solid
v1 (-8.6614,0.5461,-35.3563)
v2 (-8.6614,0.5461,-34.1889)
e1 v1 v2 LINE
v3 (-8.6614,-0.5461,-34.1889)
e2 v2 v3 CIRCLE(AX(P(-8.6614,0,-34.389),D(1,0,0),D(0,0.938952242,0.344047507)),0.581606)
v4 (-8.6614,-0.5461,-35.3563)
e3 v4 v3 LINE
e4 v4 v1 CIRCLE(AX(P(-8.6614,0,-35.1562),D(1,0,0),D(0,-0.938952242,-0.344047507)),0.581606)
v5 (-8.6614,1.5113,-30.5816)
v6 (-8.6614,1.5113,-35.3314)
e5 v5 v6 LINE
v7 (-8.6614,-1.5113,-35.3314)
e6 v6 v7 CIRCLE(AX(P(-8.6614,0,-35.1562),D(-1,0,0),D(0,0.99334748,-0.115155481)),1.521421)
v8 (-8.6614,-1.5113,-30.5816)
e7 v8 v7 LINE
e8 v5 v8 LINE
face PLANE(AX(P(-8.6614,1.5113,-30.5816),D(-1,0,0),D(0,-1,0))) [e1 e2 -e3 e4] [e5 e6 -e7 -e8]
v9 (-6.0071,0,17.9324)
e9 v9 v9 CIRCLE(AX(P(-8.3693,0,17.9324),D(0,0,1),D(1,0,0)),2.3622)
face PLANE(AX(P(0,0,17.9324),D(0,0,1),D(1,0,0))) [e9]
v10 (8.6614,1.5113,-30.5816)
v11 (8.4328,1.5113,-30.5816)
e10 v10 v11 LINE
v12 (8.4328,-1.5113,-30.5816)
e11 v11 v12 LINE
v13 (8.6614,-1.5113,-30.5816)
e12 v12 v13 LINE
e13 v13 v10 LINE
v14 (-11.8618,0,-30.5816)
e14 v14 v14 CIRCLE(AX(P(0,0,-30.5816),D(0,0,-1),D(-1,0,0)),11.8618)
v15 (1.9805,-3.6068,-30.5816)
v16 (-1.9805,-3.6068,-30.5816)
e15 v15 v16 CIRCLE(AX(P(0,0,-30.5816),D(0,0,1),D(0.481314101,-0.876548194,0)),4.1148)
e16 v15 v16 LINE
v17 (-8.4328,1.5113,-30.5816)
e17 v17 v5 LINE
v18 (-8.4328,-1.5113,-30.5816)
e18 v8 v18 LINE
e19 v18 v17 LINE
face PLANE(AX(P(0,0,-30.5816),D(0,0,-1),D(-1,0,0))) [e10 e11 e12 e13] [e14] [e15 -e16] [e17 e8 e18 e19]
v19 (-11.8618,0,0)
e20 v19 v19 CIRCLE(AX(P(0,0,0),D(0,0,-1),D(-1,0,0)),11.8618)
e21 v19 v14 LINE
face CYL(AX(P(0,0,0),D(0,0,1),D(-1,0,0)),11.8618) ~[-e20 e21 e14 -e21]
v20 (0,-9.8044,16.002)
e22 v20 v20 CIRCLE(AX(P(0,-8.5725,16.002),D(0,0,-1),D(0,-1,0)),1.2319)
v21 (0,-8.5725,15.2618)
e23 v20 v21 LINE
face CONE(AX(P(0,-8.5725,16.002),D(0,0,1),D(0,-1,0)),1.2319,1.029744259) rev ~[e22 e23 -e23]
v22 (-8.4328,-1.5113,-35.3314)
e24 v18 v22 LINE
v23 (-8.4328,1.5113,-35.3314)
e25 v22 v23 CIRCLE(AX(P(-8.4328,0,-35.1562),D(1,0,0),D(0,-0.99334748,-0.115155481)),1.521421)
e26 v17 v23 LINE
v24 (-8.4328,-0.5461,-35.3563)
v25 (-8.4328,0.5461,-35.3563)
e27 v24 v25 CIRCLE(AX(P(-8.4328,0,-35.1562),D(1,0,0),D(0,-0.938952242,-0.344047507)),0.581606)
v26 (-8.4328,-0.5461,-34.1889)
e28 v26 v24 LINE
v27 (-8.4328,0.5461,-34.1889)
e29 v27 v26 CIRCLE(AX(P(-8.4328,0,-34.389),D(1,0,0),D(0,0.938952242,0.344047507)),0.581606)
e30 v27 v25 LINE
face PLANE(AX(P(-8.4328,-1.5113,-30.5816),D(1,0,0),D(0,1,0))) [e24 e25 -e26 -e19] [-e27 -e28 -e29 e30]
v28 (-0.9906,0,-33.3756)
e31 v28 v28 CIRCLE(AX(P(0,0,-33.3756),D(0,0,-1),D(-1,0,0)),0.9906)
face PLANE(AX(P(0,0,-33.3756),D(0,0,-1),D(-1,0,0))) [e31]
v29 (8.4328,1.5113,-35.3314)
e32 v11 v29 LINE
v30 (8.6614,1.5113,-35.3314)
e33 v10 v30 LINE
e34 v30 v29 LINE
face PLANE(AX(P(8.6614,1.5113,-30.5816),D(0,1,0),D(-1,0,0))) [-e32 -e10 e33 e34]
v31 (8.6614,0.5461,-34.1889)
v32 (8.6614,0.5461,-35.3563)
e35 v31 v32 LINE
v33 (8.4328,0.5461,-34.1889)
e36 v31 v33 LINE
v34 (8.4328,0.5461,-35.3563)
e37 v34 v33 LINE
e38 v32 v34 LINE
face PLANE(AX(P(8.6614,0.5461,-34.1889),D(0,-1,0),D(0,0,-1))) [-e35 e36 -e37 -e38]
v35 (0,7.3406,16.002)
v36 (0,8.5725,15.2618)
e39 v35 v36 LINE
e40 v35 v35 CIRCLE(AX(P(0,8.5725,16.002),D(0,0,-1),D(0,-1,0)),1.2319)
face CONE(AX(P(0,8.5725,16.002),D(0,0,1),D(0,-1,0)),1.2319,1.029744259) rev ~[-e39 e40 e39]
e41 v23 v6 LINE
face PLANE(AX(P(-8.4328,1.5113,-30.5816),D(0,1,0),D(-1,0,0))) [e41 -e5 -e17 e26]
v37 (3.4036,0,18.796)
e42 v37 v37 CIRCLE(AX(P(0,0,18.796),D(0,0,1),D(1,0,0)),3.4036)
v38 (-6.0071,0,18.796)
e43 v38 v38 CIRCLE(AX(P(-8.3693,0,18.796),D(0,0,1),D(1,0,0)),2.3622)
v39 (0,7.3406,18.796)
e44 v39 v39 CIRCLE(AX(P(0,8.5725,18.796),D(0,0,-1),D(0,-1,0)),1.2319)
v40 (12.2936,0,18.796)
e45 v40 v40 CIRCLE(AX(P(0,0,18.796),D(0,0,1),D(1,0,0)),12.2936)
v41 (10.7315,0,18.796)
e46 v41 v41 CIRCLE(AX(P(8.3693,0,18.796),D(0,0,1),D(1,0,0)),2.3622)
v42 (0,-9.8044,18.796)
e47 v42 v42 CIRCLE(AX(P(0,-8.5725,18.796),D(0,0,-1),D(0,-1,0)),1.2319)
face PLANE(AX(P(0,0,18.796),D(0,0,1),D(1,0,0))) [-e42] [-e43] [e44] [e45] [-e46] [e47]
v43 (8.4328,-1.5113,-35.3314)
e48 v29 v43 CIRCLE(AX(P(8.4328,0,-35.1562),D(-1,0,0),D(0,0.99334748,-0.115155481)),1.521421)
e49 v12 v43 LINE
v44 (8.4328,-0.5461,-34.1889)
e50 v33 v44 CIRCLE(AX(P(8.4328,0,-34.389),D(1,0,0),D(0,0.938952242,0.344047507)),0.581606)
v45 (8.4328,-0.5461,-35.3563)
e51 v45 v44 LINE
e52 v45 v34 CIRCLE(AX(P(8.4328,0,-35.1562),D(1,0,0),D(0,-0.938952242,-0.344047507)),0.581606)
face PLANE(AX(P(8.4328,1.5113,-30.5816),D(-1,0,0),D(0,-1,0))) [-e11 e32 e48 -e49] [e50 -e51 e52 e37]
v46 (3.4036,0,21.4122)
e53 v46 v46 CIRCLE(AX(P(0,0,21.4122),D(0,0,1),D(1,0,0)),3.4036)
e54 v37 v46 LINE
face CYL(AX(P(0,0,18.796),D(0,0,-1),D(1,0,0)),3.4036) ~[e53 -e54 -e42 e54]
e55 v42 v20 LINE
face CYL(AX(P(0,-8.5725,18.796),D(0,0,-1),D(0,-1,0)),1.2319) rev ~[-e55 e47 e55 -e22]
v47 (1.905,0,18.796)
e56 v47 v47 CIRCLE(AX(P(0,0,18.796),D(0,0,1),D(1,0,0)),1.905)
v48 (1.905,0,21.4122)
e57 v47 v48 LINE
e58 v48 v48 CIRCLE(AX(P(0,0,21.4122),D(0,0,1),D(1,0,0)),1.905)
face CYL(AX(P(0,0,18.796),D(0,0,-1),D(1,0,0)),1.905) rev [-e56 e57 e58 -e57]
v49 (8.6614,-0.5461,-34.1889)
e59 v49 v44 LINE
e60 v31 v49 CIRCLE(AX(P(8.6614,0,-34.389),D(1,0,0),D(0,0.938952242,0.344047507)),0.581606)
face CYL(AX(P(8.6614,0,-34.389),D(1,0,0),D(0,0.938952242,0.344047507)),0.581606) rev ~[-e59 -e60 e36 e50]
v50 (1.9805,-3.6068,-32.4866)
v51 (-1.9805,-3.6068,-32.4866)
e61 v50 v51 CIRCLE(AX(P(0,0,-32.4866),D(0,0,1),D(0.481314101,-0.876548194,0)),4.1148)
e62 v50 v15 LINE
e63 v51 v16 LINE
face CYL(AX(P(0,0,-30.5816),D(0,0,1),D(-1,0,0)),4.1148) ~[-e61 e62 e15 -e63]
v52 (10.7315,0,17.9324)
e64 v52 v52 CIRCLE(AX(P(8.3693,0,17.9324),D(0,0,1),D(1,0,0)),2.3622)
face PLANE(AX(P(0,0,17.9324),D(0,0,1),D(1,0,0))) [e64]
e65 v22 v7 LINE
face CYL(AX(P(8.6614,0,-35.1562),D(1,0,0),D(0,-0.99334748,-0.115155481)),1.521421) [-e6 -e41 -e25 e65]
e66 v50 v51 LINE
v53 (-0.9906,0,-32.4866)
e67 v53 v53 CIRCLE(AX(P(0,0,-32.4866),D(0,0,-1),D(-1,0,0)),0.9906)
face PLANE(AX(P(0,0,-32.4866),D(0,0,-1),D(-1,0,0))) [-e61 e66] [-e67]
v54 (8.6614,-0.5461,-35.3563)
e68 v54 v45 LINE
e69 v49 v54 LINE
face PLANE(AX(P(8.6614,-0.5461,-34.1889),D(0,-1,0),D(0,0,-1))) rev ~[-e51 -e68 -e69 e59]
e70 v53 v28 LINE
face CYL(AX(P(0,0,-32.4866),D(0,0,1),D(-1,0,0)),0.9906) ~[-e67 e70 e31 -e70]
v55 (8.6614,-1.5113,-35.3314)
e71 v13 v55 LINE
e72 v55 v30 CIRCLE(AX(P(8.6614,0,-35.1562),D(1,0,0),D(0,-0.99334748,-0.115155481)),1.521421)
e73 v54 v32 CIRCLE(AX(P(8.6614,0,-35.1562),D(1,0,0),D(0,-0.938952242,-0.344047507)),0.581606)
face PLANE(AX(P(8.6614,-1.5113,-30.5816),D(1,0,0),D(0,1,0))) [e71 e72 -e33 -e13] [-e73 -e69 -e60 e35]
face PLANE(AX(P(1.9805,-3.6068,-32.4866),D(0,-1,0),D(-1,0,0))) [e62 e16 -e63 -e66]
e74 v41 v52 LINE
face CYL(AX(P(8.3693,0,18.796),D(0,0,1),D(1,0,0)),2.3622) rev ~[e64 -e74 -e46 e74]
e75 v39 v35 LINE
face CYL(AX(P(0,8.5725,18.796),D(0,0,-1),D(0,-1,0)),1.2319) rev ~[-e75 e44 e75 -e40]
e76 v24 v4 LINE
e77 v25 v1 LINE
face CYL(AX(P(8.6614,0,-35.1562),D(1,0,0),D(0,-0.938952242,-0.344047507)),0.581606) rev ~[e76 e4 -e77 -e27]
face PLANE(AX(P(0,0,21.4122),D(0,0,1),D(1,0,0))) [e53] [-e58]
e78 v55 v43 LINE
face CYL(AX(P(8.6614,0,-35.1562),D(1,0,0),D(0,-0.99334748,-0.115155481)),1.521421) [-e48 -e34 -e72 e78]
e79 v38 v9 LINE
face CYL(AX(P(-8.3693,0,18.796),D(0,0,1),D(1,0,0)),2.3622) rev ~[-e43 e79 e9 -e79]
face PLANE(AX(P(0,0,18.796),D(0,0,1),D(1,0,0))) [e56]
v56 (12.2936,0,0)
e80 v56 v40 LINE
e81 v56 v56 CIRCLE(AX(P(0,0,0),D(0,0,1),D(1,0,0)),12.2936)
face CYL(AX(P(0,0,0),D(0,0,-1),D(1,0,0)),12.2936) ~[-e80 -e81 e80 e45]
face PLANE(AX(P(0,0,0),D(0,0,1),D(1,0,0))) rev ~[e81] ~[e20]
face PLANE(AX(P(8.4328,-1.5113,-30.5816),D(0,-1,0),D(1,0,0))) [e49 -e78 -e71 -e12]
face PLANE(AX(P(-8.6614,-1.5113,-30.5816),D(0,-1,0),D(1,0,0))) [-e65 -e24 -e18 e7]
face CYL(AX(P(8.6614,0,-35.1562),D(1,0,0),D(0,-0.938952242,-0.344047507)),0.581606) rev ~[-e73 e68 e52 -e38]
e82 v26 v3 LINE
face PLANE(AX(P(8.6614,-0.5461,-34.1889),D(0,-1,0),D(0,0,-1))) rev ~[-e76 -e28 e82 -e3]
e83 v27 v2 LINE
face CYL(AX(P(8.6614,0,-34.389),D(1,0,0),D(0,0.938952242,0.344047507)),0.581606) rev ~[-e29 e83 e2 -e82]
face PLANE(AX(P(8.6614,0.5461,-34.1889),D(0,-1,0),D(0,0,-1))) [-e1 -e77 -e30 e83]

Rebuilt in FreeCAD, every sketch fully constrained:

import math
import FreeCAD as App
import Part
import Sketcher

V = App.Vector
Q = App.Units.Quantity

doc = App.newDocument("Part")
body = doc.addObject("PartDesign::Body", "Body")

# Sketch on XY plane
sketch1 = body.newObject("Sketcher::SketchObject", "Sketch")
sketch1.AttachmentSupport = (doc.getObject("XY_Plane"), [""])
sketch1.MapMode = "FlatFace"
sketch1.addGeometry(Part.Circle(V(0, 0, 0), V(0, 0, 1), 12.2936), False)
sketch1.addConstraint([
    Sketcher.Constraint("Coincident", 0, 3, -1, 1),
    Sketcher.Constraint("Diameter", 0, Q("0.968 in")),
])
pad1 = body.newObject("PartDesign::Pad", "Pad")
pad1.Profile = sketch1
pad1.Length = Q("0.74 in")

# Sketch on XY plane
sketch2 = body.newObject("Sketcher::SketchObject", "Sketch001")
sketch2.AttachmentSupport = (doc.getObject("XY_Plane"), [""])
sketch2.MapMode = "FlatFace"
sketch2.AttachmentOffset = App.Placement(V(0, 0, 0.74 * 25.4), App.Rotation())
sketch2.addGeometry([
    Part.Circle(V(0, 0, 0), V(0, 0, 1), 3.4036),
    Part.Circle(V(0, 0, 0), V(0, 0, 1), 1.905),
], False)
sketch2.addConstraint([
    Sketcher.Constraint("Coincident", 0, 3, -1, 1),
    Sketcher.Constraint("Coincident", 1, 3, -1, 1),
    Sketcher.Constraint("Diameter", 1, Q("0.15 in")),
    Sketcher.Constraint("Diameter", 0, Q("0.268 in")),
])
pad2 = body.newObject("PartDesign::Pad", "Pad001")
pad2.Profile = sketch2
pad2.Length = Q("0.103 in")

# Sketch on XY plane
sketch3 = body.newObject("Sketcher::SketchObject", "Sketch002")
sketch3.AttachmentSupport = (doc.getObject("XY_Plane"), [""])
sketch3.MapMode = "FlatFace"
sketch3.AttachmentOffset = App.Placement(V(0, 0, 0.74 * 25.4), App.Rotation())
sketch3.addGeometry([
    Part.Circle(V(0, 8.5725, 0), V(0, 0, 1), 1.2319),
    Part.Circle(V(0, -8.5725, 0), V(0, 0, 1), 1.2319),
], False)
sketch3.addConstraint([
    Sketcher.Constraint("Equal", 0, 1),
    Sketcher.Constraint("Symmetric", 0, 3, 1, 3, -1, 1),
    Sketcher.Constraint("PointOnObject", 0, 3, -2),
    Sketcher.Constraint("Diameter", 0, Q("0.097 in")),
    Sketcher.Constraint("DistanceY", 1, 3, 0, 3, Q("0.675 in")),
])
doc.recompute()
hole = body.newObject("PartDesign::Hole", "Hole")
hole.Profile = sketch3
hole.ThreadType = "None"
hole.Diameter = Q("0.097 in")
hole.DepthType = "Dimension"
hole.Depth = Q("0.11 in")
hole.DrillPoint = "Angled"
hole.DrillPointAngle = 118

# Sketch on XY plane
sketch4 = body.newObject("Sketcher::SketchObject", "Sketch003")
sketch4.AttachmentSupport = (doc.getObject("XY_Plane"), [""])
sketch4.MapMode = "FlatFace"
sketch4.addGeometry(Part.Circle(V(0, 0, 0), V(0, 0, 1), 11.8618), False)
sketch4.addConstraint([
    Sketcher.Constraint("Coincident", 0, 3, -1, 1),
    Sketcher.Constraint("Diameter", 0, Q("0.934 in")),
])
pad3 = body.newObject("PartDesign::Pad", "Pad002")
pad3.Profile = sketch4
pad3.Length = Q("1.204 in")
pad3.Reversed = True

# Sketch on XY plane
sketch5 = body.newObject("Sketcher::SketchObject", "Sketch004")
sketch5.AttachmentSupport = (doc.getObject("XY_Plane"), [""])
sketch5.MapMode = "FlatFace"
sketch5.AttachmentOffset = App.Placement(V(0, 0, -1.204 * 25.4), App.Rotation())
sketch5.addGeometry(Part.Circle(V(0, 0, 0), V(0, 0, 1), 4.1148), False)
sketch5.addConstraint([
    Sketcher.Constraint("Coincident", 0, 3, -1, 1),
    Sketcher.Constraint("Diameter", 0, Q("0.324 in")),
])
pad4 = body.newObject("PartDesign::Pad", "Pad003")
pad4.Profile = sketch5
pad4.Length = Q("0.075 in")
pad4.Reversed = True

# Sketch on XY plane
sketch6 = body.newObject("Sketcher::SketchObject", "Sketch005")
sketch6.AttachmentSupport = (doc.getObject("XY_Plane"), [""])
sketch6.MapMode = "FlatFace"
sketch6.AttachmentOffset = App.Placement(V(0, 0, -1.279 * 25.4), App.Rotation())
sketch6.addGeometry([
    Part.LineSegment(V(-1.9805, -3.6068, 0), V(1.9805, -3.6068, 0)),
    Part.ArcOfCircle(Part.Circle(V(0, 0, 0), V(0, 0, 1), 4.1148), math.radians(-118.771263), math.radians(-61.228737)),
], False)
sketch6.addConstraint([
    Sketcher.Constraint("Coincident", 0, 1, 1, 1),
    Sketcher.Constraint("Coincident", 1, 2, 0, 2),
    Sketcher.Constraint("Horizontal", 0),
    Sketcher.Constraint("Coincident", 1, 3, -1, 1),
    Sketcher.Constraint("Radius", 1, Q("0.162 in")),
    Sketcher.Constraint("DistanceY", 0, 1, -1, 1, Q("0.142 in")),
])
pocket1 = body.newObject("PartDesign::Pocket", "Pocket")
pocket1.Profile = sketch6
pocket1.Length = Q("0.075 in")
pocket1.Reversed = True

# Sketch on XY plane
sketch7 = body.newObject("Sketcher::SketchObject", "Sketch006")
sketch7.AttachmentSupport = (doc.getObject("XY_Plane"), [""])
sketch7.MapMode = "FlatFace"
sketch7.AttachmentOffset = App.Placement(V(0, 0, -1.279 * 25.4), App.Rotation())
sketch7.addGeometry(Part.Circle(V(0, 0, 0), V(0, 0, 1), 0.9906), False)
sketch7.addConstraint([
    Sketcher.Constraint("Coincident", 0, 3, -1, 1),
    Sketcher.Constraint("Diameter", 0, Q("0.078 in")),
])
pad5 = body.newObject("PartDesign::Pad", "Pad004")
pad5.Profile = sketch7
pad5.Length = Q("0.035 in")
pad5.Reversed = True

# Sketch on XY plane
sketch8 = body.newObject("Sketcher::SketchObject", "Sketch007")
sketch8.AttachmentSupport = (doc.getObject("XY_Plane"), [""])
sketch8.MapMode = "FlatFace"
sketch8.AttachmentOffset = App.Placement(V(0, 0, -1.204 * 25.4), App.Rotation())
sketch8.addGeometry([
    Part.LineSegment(V(8.4328, 1.5113, 0), V(8.6614, 1.5113, 0)),  # 0
    Part.LineSegment(V(8.6614, 1.5113, 0), V(8.6614, -1.5113, 0)),  # 1
    Part.LineSegment(V(8.6614, -1.5113, 0), V(8.4328, -1.5113, 0)),  # 2
    Part.LineSegment(V(8.4328, -1.5113, 0), V(8.4328, 1.5113, 0)),  # 3
    Part.LineSegment(V(-8.6614, 1.5113, 0), V(-8.4328, 1.5113, 0)),  # 4
    Part.LineSegment(V(-8.4328, 1.5113, 0), V(-8.4328, -1.5113, 0)),  # 5
    Part.LineSegment(V(-8.4328, -1.5113, 0), V(-8.6614, -1.5113, 0)),  # 6
    Part.LineSegment(V(-8.6614, -1.5113, 0), V(-8.6614, 1.5113, 0)),  # 7
], False)
sketch8.addConstraint([
    Sketcher.Constraint("Coincident", 0, 2, 1, 1),
    Sketcher.Constraint("Coincident", 1, 2, 2, 1),
    Sketcher.Constraint("Coincident", 2, 2, 3, 1),
    Sketcher.Constraint("Coincident", 3, 2, 0, 1),
    Sketcher.Constraint("Coincident", 4, 2, 5, 1),
    Sketcher.Constraint("Coincident", 5, 2, 6, 1),
    Sketcher.Constraint("Coincident", 6, 2, 7, 1),
    Sketcher.Constraint("Coincident", 7, 2, 4, 1),
    Sketcher.Constraint("Horizontal", 0),
    Sketcher.Constraint("Vertical", 1),
    Sketcher.Constraint("Horizontal", 2),
    Sketcher.Constraint("Vertical", 3),
    Sketcher.Constraint("Horizontal", 4),
    Sketcher.Constraint("Vertical", 5),
    Sketcher.Constraint("Horizontal", 6),
    Sketcher.Constraint("Vertical", 7),
    Sketcher.Constraint("Symmetric", 2, 2, 4, 2, -1, 1),
    Sketcher.Constraint("Symmetric", 0, 2, 6, 2, -1, 1),
    Sketcher.Constraint("Horizontal", 3, 2, 4, 2),
    Sketcher.Constraint("DistanceX", 0, 1, 0, 2, Q("0.009 in")),
    Sketcher.Constraint("DistanceY", 1, 2, 1, 1, Q("0.119 in")),
    Sketcher.Constraint("DistanceX", -1, 1, 2, 2, Q("0.332 in")),
])
pad6 = body.newObject("PartDesign::Pad", "Pad005")
pad6.Profile = sketch8
pad6.Length = Q("0.24 in")
pad6.Reversed = True

# Sketch on YZ plane
sketch9 = body.newObject("Sketcher::SketchObject", "Sketch008")
sketch9.AttachmentSupport = (doc.getObject("YZ_Plane"), [""])
sketch9.MapMode = "FlatFace"
sketch9.AttachmentOffset = App.Placement(V(0, 0, 0.341 * 25.4), App.Rotation())
sketch9.addGeometry([
    Part.ArcOfCircle(Part.Circle(V(0, -35.1562, 0), V(0, 0, 1), 1.521421), math.radians(-173.387407), math.radians(-90)),  # 0
    Part.LineSegment(V(-1.5113, -35.3314, 0), V(-1.5113, -36.6776, 0)),  # 1
    Part.LineSegment(V(-1.5113, -36.6776, 0), V(0, -36.6776, 0)),  # 2
    Part.LineSegment(V(1.5113, -36.6776, 0), V(1.5113, -35.3314, 0)),  # 3
    Part.ArcOfCircle(Part.Circle(V(0, -35.1562, 0), V(0, 0, 1), 1.521421), math.radians(-90), math.radians(-6.612593)),  # 4
    Part.LineSegment(V(0, -36.6776, 0), V(1.5113, -36.6776, 0)),  # 5
], False)
sketch9.addConstraint([
    Sketcher.Constraint("Coincident", 0, 1, 1, 1),
    Sketcher.Constraint("Coincident", 1, 2, 2, 1),
    Sketcher.Constraint("Tangent", 2, 2, 0, 2),
    Sketcher.Constraint("Coincident", 3, 2, 4, 2),
    Sketcher.Constraint("Tangent", 4, 1, 5, 1),
    Sketcher.Constraint("Coincident", 5, 2, 3, 1),
    Sketcher.Constraint("Vertical", 1),
    Sketcher.Constraint("Horizontal", 2),
    Sketcher.Constraint("Vertical", 3),
    Sketcher.Constraint("Horizontal", 5),
    Sketcher.Constraint("Coincident", 4, 3, 0, 3),
    Sketcher.Constraint("Equal", 0, 4),
    Sketcher.Constraint("Symmetric", 0, 1, 3, 2, -2),
    Sketcher.Constraint("DistanceY", 1, 2, 1, 1, Q("0.053 in")),
    Sketcher.Constraint("Radius", 0, Q("0.0599 in")),
    Sketcher.Constraint("DistanceY", 0, 1, -1, 1, Q("1.391 in")),
])
pocket2 = body.newObject("PartDesign::Pocket", "Pocket001")
pocket2.Profile = sketch9
pocket2.Type = "ThroughAll"

# Sketch on YZ plane
sketch10 = body.newObject("Sketcher::SketchObject", "Sketch009")
sketch10.AttachmentSupport = (doc.getObject("YZ_Plane"), [""])
sketch10.MapMode = "FlatFace"
sketch10.AttachmentOffset = App.Placement(V(0, 0, 0.341 * 25.4), App.Rotation())
sketch10.addGeometry([
    Part.LineSegment(V(-0.5461, -34.1889, 0), V(-0.5461, -35.3563, 0)),
    Part.ArcOfCircle(Part.Circle(V(0, -35.1562, 0), V(0, 0, 1), 0.581606), math.radians(-159.876337), math.radians(-20.123663)),
    Part.LineSegment(V(0.5461, -35.3563, 0), V(0.5461, -34.1889, 0)),
    Part.ArcOfCircle(Part.Circle(V(0, -34.389, 0), V(0, 0, 1), 0.581606), math.radians(20.123663), math.radians(159.876337)),
], False)
sketch10.addConstraint([
    Sketcher.Constraint("Coincident", 0, 2, 1, 1),
    Sketcher.Constraint("Coincident", 1, 2, 2, 1),
    Sketcher.Constraint("Coincident", 2, 2, 3, 1),
    Sketcher.Constraint("Coincident", 3, 2, 0, 1),
    Sketcher.Constraint("Vertical", 0),
    Sketcher.Constraint("Vertical", 2),
    Sketcher.Constraint("Equal", 1, 3),
    Sketcher.Constraint("Symmetric", 0, 2, 1, 2, -2),
    Sketcher.Constraint("PointOnObject", 3, 3, -2),
    Sketcher.Constraint("Radius", 1, Q("0.0229 in")),
    Sketcher.Constraint("DistanceX", 0, 2, 1, 2, Q("0.043 in")),
    Sketcher.Constraint("DistanceY", 0, 2, 0, 1, 1.1674),
    Sketcher.Constraint("DistanceY", 1, 3, -1, 1, Q("1.3841 in")),
])
pocket3 = body.newObject("PartDesign::Pocket", "Pocket002")
pocket3.Profile = sketch10
pocket3.Type = "ThroughAll"

# Sketch on XY plane
sketch11 = body.newObject("Sketcher::SketchObject", "Sketch010")
sketch11.AttachmentSupport = (doc.getObject("XY_Plane"), [""])
sketch11.MapMode = "FlatFace"
sketch11.AttachmentOffset = App.Placement(V(0, 0, 0.74 * 25.4), App.Rotation())
sketch11.addGeometry([
    Part.Circle(V(-8.3693, 0, 0), V(0, 0, 1), 2.3622),
    Part.Circle(V(8.3693, 0, 0), V(0, 0, 1), 2.3622),
], False)
sketch11.addConstraint([
    Sketcher.Constraint("Equal", 0, 1),
    Sketcher.Constraint("Symmetric", 0, 3, 1, 3, -1, 1),
    Sketcher.Constraint("PointOnObject", 0, 3, -1),
    Sketcher.Constraint("Diameter", 0, Q("0.186 in")),
    Sketcher.Constraint("DistanceX", 0, 3, 1, 3, Q("0.659 in")),
])
pocket4 = body.newObject("PartDesign::Pocket", "Pocket003")
pocket4.Profile = sketch11
pocket4.Length = Q("0.034 in")

doc.recompute()
